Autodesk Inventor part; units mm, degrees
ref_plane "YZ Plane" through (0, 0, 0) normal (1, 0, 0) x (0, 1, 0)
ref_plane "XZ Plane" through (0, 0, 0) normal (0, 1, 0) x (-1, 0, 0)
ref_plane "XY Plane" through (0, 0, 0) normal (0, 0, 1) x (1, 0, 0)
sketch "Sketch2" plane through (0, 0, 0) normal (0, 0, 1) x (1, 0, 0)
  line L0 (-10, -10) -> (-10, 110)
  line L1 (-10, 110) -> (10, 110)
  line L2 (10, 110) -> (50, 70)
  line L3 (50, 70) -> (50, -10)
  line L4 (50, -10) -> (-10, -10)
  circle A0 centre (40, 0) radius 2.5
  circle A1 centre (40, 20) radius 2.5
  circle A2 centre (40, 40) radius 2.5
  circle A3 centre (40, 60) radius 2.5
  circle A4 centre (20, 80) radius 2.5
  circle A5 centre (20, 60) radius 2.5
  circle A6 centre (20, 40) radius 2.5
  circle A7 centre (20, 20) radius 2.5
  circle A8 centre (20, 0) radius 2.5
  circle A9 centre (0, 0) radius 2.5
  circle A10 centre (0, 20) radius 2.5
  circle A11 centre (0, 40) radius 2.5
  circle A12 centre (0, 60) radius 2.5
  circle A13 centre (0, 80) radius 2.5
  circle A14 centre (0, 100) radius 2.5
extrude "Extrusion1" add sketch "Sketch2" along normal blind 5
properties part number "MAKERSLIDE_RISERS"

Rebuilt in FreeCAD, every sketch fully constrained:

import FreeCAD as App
import Part
import Sketcher
from FreeCAD import Vector
Q = App.Units.Quantity


def add_polygon(sketch, points):
    """Adds a closed chain of lines whose ends are joined by coincident constraints."""
    first, n = sketch.GeometryCount, len(points)
    for a, b in zip(points, points[1:] + points[:1]):
        sketch.addGeometry(Part.LineSegment(App.Vector(*a, 0), App.Vector(*b, 0)), False)
    for i in range(n):
        sketch.addConstraint(Sketcher.Constraint("Coincident", first + i, 2, first + (i + 1) % n, 1))

doc = App.newDocument("Part")
body = doc.addObject("PartDesign::Body", "Body")

# Sketch on XY plane
sketch1 = body.newObject("Sketcher::SketchObject", "Sketch")
sketch1.AttachmentSupport = (doc.getObject("XY_Plane"), [""])
sketch1.MapMode = "FlatFace"
add_polygon(sketch1, [(-10, 110), (-10, -10), (50, -10), (50, 70), (10, 110)])  # lines 0-4
sketch1.addGeometry(Part.Circle(Vector(0, 0, 0), Vector(0, 0, 1), 2.5), False)  # 5
sketch1.addGeometry(Part.Circle(Vector(20, 0, 0), Vector(0, 0, 1), 2.5), False)  # 6
sketch1.addGeometry(Part.Circle(Vector(0, 20, 0), Vector(0, 0, 1), 2.5), False)  # 7
sketch1.addGeometry(Part.Circle(Vector(0, 40, 0), Vector(0, 0, 1), 2.5), False)  # 8
sketch1.addGeometry(Part.Circle(Vector(20, 20, 0), Vector(0, 0, 1), 2.5), False)  # 9
sketch1.addGeometry(Part.Circle(Vector(20, 40, 0), Vector(0, 0, 1), 2.5), False)  # 10
sketch1.addGeometry(Part.Circle(Vector(40, 0, 0), Vector(0, 0, 1), 2.5), False)  # 11
sketch1.addGeometry(Part.Circle(Vector(40, 20, 0), Vector(0, 0, 1), 2.5), False)  # 12
sketch1.addGeometry(Part.Circle(Vector(40, 40, 0), Vector(0, 0, 1), 2.5), False)  # 13
sketch1.addGeometry(Part.Circle(Vector(0, 60, 0), Vector(0, 0, 1), 2.5), False)  # 14
sketch1.addGeometry(Part.Circle(Vector(20, 60, 0), Vector(0, 0, 1), 2.5), False)  # 15
sketch1.addGeometry(Part.Circle(Vector(0, 80, 0), Vector(0, 0, 1), 2.5), False)  # 16
sketch1.addGeometry(Part.Circle(Vector(0, 100, 0), Vector(0, 0, 1), 2.5), False)  # 17
sketch1.addGeometry(Part.Circle(Vector(20, 80, 0), Vector(0, 0, 1), 2.5), False)  # 18
sketch1.addGeometry(Part.Circle(Vector(40, 60, 0), Vector(0, 0, 1), 2.5), False)  # 19
sketch1.addConstraint([
    Sketcher.Constraint("Vertical", 0),
    Sketcher.Constraint("Horizontal", 1),
    Sketcher.Constraint("Vertical", 2),
    Sketcher.Constraint("Horizontal", 4),
    Sketcher.Constraint("Coincident", 5, 3, -1, 1),
    Sketcher.Constraint("Equal", 5, 6),
    Sketcher.Constraint("Equal", 6, 7),
    Sketcher.Constraint("Equal", 7, 8),
    Sketcher.Constraint("Equal", 8, 9),
    Sketcher.Constraint("Equal", 9, 10),
    Sketcher.Constraint("Equal", 10, 11),
    Sketcher.Constraint("Equal", 11, 12),
    Sketcher.Constraint("Equal", 12, 13),
    Sketcher.Constraint("Equal", 13, 14),
    Sketcher.Constraint("Equal", 14, 15),
    Sketcher.Constraint("Equal", 15, 16),
    Sketcher.Constraint("Equal", 16, 17),
    Sketcher.Constraint("Equal", 17, 18),
    Sketcher.Constraint("Equal", 18, 19),
    Sketcher.Constraint("PointOnObject", 6, 3, -1),
    Sketcher.Constraint("PointOnObject", 7, 3, -2),
    Sketcher.Constraint("PointOnObject", 8, 3, -2),
    Sketcher.Constraint("PointOnObject", 11, 3, -1),
    Sketcher.Constraint("PointOnObject", 14, 3, -2),
    Sketcher.Constraint("PointOnObject", 16, 3, -2),
    Sketcher.Constraint("PointOnObject", 17, 3, -2),
    Sketcher.Constraint("Horizontal", 7, 3, 9, 3),
    Sketcher.Constraint("Horizontal", 8, 3, 10, 3),
    Sketcher.Constraint("Horizontal", 9, 3, 12, 3),
    Sketcher.Constraint("Horizontal", 10, 3, 13, 3),
    Sketcher.Constraint("Horizontal", 14, 3, 15, 3),
    Sketcher.Constraint("Horizontal", 16, 3, 18, 3),
    Sketcher.Constraint("Horizontal", 15, 3, 19, 3),
    Sketcher.Constraint("Vertical", 6, 3, 9, 3),
    Sketcher.Constraint("Vertical", 9, 3, 10, 3),
    Sketcher.Constraint("Vertical", 11, 3, 12, 3),
    Sketcher.Constraint("Vertical", 12, 3, 13, 3),
    Sketcher.Constraint("Vertical", 10, 3, 15, 3),
    Sketcher.Constraint("Vertical", 15, 3, 18, 3),
    Sketcher.Constraint("Vertical", 13, 3, 19, 3),
    Sketcher.Constraint("Diameter", 5, Q("5 mm")),
    Sketcher.Constraint("DistanceX", 1, 1, 1, 2, Q("60 mm")),
    Sketcher.Constraint("DistanceX", 4, 2, 4, 1, Q("20 mm")),
    Sketcher.Constraint("DistanceY", 0, 2, 0, 1, Q("120 mm")),
    Sketcher.Constraint("DistanceY", 2, 1, 2, 2, Q("80 mm")),
    Sketcher.Constraint("DistanceX", -1, 1, 6, 3, Q("20 mm")),
    Sketcher.Constraint("DistanceY", -1, 1, 7, 3, Q("20 mm")),
    Sketcher.Constraint("DistanceY", -1, 1, 8, 3, Q("40 mm")),
    Sketcher.Constraint("DistanceX", -1, 1, 11, 3, Q("40 mm")),
    Sketcher.Constraint("DistanceY", -1, 1, 14, 3, Q("60 mm")),
    Sketcher.Constraint("DistanceY", -1, 1, 16, 3, Q("80 mm")),
    Sketcher.Constraint("DistanceY", -1, 1, 17, 3, Q("100 mm")),
    Sketcher.Constraint("DistanceX", 0, 2, -1, 1, Q("10 mm")),
    Sketcher.Constraint("DistanceY", 0, 2, -1, 1, Q("10 mm")),
])
pad1 = body.newObject("PartDesign::Pad", "Pad")
pad1.Profile = sketch1
pad1.Length = 5

doc.recompute()
